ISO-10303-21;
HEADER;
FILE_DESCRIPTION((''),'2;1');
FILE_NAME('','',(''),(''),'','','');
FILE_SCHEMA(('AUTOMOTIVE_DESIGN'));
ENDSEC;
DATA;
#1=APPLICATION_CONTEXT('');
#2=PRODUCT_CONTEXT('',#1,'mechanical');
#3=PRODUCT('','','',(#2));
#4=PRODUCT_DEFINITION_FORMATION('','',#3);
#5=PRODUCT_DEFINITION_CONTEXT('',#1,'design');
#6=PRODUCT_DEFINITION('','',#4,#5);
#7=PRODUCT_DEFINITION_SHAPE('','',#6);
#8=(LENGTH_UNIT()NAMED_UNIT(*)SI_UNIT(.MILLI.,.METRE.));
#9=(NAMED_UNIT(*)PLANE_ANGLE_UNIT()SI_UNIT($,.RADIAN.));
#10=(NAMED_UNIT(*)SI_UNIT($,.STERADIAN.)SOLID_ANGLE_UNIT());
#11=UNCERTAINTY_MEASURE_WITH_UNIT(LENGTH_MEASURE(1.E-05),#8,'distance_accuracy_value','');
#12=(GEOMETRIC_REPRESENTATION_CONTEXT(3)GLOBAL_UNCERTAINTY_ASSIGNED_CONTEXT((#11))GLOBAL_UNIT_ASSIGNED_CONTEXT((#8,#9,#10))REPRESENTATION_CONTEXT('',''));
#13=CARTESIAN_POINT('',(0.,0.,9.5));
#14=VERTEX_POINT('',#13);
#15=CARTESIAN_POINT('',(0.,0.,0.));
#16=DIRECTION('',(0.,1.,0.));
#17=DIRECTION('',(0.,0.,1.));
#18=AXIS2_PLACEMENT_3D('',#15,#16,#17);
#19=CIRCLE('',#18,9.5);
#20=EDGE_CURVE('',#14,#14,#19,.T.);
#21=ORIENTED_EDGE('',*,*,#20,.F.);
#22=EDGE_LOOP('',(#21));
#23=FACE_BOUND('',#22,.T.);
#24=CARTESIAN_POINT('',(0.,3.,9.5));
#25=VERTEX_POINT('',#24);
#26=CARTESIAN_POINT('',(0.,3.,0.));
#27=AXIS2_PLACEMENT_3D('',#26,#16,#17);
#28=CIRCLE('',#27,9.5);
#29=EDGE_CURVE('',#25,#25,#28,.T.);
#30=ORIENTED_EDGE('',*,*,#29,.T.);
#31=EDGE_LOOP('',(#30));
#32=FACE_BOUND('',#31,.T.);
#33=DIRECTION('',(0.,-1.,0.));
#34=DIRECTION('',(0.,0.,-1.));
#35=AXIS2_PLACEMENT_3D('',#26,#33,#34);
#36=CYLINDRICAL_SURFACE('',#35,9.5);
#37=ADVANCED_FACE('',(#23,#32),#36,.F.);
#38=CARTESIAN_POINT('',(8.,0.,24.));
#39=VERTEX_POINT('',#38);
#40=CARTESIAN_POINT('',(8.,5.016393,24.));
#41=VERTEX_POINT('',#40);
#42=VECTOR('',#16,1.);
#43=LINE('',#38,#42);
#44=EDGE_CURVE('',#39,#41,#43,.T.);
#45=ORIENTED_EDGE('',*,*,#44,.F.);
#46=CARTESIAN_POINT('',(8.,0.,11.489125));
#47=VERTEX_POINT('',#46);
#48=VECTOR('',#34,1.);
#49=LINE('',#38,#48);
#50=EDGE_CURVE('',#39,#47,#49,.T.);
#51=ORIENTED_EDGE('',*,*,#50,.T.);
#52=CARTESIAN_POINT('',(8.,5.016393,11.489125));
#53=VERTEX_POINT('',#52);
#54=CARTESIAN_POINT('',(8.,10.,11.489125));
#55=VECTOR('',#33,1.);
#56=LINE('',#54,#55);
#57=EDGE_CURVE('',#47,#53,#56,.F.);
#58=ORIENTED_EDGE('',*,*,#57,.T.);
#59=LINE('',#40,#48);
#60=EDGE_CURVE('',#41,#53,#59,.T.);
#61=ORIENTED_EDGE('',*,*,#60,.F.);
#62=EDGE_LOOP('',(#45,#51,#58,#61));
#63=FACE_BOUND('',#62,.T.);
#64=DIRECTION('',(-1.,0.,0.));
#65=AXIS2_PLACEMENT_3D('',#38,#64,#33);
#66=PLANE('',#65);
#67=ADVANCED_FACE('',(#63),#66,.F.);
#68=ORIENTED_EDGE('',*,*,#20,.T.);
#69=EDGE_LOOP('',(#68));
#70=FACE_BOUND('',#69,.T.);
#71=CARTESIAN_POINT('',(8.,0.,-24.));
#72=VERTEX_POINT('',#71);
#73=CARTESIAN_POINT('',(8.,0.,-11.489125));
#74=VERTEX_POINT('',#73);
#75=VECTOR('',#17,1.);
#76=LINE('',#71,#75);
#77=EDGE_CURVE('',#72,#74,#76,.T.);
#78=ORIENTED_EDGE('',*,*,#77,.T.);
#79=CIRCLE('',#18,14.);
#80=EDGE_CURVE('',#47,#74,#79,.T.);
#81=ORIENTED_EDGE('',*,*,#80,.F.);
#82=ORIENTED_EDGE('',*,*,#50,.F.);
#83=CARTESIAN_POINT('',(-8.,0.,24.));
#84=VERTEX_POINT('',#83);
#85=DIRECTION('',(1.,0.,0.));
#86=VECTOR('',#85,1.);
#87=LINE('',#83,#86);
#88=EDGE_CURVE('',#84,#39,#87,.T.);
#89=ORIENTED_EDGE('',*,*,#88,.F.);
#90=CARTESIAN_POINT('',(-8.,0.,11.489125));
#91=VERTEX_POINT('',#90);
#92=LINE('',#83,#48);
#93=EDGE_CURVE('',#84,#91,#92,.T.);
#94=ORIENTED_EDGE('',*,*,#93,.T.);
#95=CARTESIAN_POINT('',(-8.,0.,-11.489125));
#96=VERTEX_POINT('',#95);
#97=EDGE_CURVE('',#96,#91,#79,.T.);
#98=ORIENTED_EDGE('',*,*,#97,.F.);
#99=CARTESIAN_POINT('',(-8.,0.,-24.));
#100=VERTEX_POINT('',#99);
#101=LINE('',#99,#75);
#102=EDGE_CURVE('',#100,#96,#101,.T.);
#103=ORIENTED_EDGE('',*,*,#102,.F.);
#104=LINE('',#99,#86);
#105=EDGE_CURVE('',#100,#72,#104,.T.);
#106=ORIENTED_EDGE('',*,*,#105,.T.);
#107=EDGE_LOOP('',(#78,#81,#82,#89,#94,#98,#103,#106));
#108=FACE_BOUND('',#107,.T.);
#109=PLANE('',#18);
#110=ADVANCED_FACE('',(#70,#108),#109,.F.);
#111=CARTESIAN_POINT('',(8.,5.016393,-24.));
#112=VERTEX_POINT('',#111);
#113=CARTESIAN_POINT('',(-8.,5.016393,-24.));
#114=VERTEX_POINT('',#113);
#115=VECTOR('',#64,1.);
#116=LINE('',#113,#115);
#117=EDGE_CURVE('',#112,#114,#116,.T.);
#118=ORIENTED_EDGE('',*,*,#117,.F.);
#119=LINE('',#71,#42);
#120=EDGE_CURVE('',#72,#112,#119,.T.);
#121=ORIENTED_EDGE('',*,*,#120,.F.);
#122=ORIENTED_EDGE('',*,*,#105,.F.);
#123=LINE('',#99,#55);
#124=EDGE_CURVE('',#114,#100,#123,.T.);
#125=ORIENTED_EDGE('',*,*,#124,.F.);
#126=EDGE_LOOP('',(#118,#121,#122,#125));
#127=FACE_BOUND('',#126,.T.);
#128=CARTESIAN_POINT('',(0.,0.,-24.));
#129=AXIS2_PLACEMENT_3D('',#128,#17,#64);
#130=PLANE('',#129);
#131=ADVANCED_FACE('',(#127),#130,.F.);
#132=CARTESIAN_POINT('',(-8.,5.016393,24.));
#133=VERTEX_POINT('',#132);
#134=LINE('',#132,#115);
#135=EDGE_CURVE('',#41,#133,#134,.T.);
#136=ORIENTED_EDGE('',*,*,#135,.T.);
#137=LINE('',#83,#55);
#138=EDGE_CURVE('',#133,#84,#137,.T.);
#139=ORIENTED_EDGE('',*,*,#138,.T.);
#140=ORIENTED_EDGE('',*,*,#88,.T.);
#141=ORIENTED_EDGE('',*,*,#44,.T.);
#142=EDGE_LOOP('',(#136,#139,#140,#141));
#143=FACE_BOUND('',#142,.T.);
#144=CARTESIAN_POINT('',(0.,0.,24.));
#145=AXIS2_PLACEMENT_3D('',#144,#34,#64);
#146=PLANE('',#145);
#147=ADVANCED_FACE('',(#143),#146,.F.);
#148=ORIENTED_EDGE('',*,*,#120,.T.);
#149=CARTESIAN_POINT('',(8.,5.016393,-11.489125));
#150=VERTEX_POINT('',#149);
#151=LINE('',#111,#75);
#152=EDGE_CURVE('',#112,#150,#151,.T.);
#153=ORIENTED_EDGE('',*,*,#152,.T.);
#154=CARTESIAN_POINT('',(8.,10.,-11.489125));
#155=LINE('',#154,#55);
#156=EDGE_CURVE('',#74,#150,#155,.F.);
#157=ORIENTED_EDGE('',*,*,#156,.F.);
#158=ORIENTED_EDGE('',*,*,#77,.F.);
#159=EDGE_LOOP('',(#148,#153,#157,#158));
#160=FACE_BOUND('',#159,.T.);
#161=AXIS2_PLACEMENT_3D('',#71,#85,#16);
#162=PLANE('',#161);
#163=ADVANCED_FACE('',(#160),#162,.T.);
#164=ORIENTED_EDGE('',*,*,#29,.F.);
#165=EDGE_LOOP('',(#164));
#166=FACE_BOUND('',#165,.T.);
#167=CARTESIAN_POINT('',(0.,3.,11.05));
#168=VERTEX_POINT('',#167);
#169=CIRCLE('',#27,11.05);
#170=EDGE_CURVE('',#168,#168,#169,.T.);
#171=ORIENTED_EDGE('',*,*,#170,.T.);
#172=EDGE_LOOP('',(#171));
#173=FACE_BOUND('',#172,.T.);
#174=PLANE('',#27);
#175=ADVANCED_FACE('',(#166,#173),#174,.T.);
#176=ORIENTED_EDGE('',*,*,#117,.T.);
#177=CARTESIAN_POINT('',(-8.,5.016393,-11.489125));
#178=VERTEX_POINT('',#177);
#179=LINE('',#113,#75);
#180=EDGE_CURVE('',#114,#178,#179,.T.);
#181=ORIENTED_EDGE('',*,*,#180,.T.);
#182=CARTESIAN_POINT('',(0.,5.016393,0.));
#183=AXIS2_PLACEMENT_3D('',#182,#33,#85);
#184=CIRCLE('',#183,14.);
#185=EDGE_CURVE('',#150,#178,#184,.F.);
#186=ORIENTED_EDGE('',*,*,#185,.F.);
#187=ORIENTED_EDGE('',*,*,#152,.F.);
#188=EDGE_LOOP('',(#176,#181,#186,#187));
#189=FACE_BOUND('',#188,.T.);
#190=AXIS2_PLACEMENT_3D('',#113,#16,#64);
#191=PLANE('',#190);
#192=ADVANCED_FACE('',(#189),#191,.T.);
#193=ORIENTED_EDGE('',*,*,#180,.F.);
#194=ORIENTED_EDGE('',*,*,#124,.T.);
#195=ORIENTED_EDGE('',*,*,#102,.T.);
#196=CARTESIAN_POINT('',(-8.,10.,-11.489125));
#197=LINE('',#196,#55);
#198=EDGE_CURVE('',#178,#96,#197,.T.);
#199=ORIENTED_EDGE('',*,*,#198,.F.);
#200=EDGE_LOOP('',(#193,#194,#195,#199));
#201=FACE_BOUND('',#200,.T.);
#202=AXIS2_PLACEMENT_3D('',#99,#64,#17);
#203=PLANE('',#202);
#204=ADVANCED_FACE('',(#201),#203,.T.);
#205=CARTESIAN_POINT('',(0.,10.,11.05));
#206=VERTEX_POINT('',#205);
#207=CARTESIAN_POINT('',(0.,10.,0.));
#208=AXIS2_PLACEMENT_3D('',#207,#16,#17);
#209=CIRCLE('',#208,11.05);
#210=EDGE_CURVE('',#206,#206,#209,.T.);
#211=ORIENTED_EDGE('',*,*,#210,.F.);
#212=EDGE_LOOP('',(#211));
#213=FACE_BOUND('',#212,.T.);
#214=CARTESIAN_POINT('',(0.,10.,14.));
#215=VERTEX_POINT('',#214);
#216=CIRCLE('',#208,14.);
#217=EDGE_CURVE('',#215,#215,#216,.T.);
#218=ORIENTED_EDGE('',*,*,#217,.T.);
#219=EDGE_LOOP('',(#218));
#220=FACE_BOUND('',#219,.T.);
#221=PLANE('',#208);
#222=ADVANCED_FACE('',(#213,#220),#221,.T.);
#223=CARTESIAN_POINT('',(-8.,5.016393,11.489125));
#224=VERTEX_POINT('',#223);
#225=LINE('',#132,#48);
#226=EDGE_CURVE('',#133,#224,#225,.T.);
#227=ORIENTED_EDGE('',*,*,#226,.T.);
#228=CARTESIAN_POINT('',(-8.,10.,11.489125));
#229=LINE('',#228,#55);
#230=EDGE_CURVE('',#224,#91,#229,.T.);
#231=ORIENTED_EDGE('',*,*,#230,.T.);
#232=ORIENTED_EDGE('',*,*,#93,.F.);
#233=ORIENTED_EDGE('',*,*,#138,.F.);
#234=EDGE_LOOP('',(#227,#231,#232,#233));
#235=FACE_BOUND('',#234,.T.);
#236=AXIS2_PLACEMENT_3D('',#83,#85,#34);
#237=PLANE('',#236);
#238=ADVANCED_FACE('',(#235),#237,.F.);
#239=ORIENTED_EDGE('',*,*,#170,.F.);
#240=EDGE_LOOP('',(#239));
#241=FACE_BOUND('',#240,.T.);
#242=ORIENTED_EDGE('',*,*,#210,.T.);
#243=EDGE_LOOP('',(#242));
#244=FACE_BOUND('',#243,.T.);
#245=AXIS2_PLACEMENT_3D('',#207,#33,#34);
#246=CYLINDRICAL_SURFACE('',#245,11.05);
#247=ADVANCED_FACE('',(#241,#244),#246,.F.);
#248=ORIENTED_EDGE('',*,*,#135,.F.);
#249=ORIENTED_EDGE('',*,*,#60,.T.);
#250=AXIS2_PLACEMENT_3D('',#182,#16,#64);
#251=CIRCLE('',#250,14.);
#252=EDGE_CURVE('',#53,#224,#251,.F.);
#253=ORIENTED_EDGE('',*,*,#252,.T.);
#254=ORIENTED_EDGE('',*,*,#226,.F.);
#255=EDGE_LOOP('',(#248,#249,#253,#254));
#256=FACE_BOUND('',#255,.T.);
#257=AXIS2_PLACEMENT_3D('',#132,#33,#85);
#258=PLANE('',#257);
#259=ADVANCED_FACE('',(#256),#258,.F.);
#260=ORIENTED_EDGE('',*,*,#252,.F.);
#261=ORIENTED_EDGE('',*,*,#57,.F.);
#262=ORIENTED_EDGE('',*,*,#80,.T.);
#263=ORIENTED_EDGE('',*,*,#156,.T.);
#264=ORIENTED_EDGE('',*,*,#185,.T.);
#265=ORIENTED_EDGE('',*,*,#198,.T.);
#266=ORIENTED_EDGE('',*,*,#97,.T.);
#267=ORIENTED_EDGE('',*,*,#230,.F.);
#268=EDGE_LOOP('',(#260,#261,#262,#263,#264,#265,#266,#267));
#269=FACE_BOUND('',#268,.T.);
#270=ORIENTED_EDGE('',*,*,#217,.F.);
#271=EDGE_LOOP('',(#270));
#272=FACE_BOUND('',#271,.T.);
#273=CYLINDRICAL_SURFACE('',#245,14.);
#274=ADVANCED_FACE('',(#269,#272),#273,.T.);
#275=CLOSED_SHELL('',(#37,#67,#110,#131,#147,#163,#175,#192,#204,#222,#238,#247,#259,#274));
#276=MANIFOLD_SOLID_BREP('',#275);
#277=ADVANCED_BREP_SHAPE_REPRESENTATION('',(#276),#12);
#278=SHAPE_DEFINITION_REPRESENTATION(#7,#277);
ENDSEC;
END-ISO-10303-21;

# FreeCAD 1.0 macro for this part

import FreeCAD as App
import Part
import Sketcher
Q = App.Units.Quantity

doc = App.newDocument("Part")
body = doc.addObject("PartDesign::Body", "Body")

# Sketch on XZ plane
sketch1 = body.newObject("Sketcher::SketchObject", "Sketch")
sketch1.AttachmentSupport = (doc.getObject("XZ_Plane"), [""])
sketch1.MapMode = "FlatFace"
sketch1.addGeometry([
    Part.Circle(App.Vector(0, 0, 0), App.Vector(0, 0, 1), 14),
    Part.Circle(App.Vector(0, 0, 0), App.Vector(0, 0, 1), 11),
], False)
sketch1.addConstraint([
    Sketcher.Constraint("Coincident", 0, 3, -1, 1),
    Sketcher.Constraint("Coincident", 1, 3, -1, 1),
    Sketcher.Constraint("Diameter", 0, Q("28 mm")),
    Sketcher.Constraint("Diameter", 1, Q("22.1 mm")),
])
pad1 = body.newObject("PartDesign::Pad", "Pad")
pad1.Profile = sketch1
pad1.Length = 10
pad1.Reversed = True

# Sketch on XZ plane
sketch2 = body.newObject("Sketcher::SketchObject", "Sketch001")
sketch2.AttachmentSupport = (doc.getObject("XZ_Plane"), [""])
sketch2.MapMode = "FlatFace"
sketch2.addGeometry([
    Part.Circle(App.Vector(0, 0, 0), App.Vector(0, 0, 1), 11),
    Part.Circle(App.Vector(0, 0, 0), App.Vector(0, 0, 1), 10),
], False)
sketch2.addConstraint([
    Sketcher.Constraint("Coincident", 0, 3, -1, 1),
    Sketcher.Constraint("Coincident", 1, 3, -1, 1),
    Sketcher.Constraint("Diameter", 1, Q("19 mm")),
    Sketcher.Constraint("Diameter", 0, Q("22.1 mm")),
])
pad2 = body.newObject("PartDesign::Pad", "Pad001")
pad2.Profile = sketch2
pad2.Length = 3
pad2.Reversed = True

# Sketch on XY plane
sketch3 = body.newObject("Sketcher::SketchObject", "Sketch002")
sketch3.AttachmentSupport = (doc.getObject("XY_Plane"), [""])
sketch3.MapMode = "FlatFace"
sketch3.AttachmentOffset = App.Placement(App.Vector(0, 0, 11.489125), App.Rotation())
sketch3.addGeometry([
    Part.LineSegment(App.Vector(-8, 5, 0), App.Vector(-8, 0, 0)),
    Part.LineSegment(App.Vector(-8, 0, 0), App.Vector(8, 0, 0)),
    Part.LineSegment(App.Vector(8, 0, 0), App.Vector(8, 5, 0)),
    Part.LineSegment(App.Vector(8, 5, 0), App.Vector(-8, 5, 0)),
], False)
sketch3.addConstraint([
    Sketcher.Constraint("Coincident", 0, 2, 1, 1),
    Sketcher.Constraint("Coincident", 1, 2, 2, 1),
    Sketcher.Constraint("Coincident", 2, 2, 3, 1),
    Sketcher.Constraint("Coincident", 3, 2, 0, 1),
    Sketcher.Constraint("Vertical", 0),
    Sketcher.Constraint("Horizontal", 1),
    Sketcher.Constraint("Vertical", 2),
    Sketcher.Constraint("Horizontal", 3),
    Sketcher.Constraint("Symmetric", 0, 2, 1, 2, -1, 1),
    Sketcher.Constraint("DistanceX", 1, 1, 1, 2, Q("16 mm")),
    Sketcher.Constraint("DistanceY", 0, 2, 0, 1, Q("5.016393 mm")),
])
pad3 = body.newObject("PartDesign::Pad", "Pad002")
pad3.Profile = sketch3
pad3.Length = 12.510875
doc.recompute()

mirrored = body.newObject("PartDesign::Mirrored", "Mirrored")
mirrored.Originals = [pad3]
mirrored.MirrorPlane = (doc.getObject("XY_Plane"), [""])
body.Tip = mirrored

doc.recompute()
